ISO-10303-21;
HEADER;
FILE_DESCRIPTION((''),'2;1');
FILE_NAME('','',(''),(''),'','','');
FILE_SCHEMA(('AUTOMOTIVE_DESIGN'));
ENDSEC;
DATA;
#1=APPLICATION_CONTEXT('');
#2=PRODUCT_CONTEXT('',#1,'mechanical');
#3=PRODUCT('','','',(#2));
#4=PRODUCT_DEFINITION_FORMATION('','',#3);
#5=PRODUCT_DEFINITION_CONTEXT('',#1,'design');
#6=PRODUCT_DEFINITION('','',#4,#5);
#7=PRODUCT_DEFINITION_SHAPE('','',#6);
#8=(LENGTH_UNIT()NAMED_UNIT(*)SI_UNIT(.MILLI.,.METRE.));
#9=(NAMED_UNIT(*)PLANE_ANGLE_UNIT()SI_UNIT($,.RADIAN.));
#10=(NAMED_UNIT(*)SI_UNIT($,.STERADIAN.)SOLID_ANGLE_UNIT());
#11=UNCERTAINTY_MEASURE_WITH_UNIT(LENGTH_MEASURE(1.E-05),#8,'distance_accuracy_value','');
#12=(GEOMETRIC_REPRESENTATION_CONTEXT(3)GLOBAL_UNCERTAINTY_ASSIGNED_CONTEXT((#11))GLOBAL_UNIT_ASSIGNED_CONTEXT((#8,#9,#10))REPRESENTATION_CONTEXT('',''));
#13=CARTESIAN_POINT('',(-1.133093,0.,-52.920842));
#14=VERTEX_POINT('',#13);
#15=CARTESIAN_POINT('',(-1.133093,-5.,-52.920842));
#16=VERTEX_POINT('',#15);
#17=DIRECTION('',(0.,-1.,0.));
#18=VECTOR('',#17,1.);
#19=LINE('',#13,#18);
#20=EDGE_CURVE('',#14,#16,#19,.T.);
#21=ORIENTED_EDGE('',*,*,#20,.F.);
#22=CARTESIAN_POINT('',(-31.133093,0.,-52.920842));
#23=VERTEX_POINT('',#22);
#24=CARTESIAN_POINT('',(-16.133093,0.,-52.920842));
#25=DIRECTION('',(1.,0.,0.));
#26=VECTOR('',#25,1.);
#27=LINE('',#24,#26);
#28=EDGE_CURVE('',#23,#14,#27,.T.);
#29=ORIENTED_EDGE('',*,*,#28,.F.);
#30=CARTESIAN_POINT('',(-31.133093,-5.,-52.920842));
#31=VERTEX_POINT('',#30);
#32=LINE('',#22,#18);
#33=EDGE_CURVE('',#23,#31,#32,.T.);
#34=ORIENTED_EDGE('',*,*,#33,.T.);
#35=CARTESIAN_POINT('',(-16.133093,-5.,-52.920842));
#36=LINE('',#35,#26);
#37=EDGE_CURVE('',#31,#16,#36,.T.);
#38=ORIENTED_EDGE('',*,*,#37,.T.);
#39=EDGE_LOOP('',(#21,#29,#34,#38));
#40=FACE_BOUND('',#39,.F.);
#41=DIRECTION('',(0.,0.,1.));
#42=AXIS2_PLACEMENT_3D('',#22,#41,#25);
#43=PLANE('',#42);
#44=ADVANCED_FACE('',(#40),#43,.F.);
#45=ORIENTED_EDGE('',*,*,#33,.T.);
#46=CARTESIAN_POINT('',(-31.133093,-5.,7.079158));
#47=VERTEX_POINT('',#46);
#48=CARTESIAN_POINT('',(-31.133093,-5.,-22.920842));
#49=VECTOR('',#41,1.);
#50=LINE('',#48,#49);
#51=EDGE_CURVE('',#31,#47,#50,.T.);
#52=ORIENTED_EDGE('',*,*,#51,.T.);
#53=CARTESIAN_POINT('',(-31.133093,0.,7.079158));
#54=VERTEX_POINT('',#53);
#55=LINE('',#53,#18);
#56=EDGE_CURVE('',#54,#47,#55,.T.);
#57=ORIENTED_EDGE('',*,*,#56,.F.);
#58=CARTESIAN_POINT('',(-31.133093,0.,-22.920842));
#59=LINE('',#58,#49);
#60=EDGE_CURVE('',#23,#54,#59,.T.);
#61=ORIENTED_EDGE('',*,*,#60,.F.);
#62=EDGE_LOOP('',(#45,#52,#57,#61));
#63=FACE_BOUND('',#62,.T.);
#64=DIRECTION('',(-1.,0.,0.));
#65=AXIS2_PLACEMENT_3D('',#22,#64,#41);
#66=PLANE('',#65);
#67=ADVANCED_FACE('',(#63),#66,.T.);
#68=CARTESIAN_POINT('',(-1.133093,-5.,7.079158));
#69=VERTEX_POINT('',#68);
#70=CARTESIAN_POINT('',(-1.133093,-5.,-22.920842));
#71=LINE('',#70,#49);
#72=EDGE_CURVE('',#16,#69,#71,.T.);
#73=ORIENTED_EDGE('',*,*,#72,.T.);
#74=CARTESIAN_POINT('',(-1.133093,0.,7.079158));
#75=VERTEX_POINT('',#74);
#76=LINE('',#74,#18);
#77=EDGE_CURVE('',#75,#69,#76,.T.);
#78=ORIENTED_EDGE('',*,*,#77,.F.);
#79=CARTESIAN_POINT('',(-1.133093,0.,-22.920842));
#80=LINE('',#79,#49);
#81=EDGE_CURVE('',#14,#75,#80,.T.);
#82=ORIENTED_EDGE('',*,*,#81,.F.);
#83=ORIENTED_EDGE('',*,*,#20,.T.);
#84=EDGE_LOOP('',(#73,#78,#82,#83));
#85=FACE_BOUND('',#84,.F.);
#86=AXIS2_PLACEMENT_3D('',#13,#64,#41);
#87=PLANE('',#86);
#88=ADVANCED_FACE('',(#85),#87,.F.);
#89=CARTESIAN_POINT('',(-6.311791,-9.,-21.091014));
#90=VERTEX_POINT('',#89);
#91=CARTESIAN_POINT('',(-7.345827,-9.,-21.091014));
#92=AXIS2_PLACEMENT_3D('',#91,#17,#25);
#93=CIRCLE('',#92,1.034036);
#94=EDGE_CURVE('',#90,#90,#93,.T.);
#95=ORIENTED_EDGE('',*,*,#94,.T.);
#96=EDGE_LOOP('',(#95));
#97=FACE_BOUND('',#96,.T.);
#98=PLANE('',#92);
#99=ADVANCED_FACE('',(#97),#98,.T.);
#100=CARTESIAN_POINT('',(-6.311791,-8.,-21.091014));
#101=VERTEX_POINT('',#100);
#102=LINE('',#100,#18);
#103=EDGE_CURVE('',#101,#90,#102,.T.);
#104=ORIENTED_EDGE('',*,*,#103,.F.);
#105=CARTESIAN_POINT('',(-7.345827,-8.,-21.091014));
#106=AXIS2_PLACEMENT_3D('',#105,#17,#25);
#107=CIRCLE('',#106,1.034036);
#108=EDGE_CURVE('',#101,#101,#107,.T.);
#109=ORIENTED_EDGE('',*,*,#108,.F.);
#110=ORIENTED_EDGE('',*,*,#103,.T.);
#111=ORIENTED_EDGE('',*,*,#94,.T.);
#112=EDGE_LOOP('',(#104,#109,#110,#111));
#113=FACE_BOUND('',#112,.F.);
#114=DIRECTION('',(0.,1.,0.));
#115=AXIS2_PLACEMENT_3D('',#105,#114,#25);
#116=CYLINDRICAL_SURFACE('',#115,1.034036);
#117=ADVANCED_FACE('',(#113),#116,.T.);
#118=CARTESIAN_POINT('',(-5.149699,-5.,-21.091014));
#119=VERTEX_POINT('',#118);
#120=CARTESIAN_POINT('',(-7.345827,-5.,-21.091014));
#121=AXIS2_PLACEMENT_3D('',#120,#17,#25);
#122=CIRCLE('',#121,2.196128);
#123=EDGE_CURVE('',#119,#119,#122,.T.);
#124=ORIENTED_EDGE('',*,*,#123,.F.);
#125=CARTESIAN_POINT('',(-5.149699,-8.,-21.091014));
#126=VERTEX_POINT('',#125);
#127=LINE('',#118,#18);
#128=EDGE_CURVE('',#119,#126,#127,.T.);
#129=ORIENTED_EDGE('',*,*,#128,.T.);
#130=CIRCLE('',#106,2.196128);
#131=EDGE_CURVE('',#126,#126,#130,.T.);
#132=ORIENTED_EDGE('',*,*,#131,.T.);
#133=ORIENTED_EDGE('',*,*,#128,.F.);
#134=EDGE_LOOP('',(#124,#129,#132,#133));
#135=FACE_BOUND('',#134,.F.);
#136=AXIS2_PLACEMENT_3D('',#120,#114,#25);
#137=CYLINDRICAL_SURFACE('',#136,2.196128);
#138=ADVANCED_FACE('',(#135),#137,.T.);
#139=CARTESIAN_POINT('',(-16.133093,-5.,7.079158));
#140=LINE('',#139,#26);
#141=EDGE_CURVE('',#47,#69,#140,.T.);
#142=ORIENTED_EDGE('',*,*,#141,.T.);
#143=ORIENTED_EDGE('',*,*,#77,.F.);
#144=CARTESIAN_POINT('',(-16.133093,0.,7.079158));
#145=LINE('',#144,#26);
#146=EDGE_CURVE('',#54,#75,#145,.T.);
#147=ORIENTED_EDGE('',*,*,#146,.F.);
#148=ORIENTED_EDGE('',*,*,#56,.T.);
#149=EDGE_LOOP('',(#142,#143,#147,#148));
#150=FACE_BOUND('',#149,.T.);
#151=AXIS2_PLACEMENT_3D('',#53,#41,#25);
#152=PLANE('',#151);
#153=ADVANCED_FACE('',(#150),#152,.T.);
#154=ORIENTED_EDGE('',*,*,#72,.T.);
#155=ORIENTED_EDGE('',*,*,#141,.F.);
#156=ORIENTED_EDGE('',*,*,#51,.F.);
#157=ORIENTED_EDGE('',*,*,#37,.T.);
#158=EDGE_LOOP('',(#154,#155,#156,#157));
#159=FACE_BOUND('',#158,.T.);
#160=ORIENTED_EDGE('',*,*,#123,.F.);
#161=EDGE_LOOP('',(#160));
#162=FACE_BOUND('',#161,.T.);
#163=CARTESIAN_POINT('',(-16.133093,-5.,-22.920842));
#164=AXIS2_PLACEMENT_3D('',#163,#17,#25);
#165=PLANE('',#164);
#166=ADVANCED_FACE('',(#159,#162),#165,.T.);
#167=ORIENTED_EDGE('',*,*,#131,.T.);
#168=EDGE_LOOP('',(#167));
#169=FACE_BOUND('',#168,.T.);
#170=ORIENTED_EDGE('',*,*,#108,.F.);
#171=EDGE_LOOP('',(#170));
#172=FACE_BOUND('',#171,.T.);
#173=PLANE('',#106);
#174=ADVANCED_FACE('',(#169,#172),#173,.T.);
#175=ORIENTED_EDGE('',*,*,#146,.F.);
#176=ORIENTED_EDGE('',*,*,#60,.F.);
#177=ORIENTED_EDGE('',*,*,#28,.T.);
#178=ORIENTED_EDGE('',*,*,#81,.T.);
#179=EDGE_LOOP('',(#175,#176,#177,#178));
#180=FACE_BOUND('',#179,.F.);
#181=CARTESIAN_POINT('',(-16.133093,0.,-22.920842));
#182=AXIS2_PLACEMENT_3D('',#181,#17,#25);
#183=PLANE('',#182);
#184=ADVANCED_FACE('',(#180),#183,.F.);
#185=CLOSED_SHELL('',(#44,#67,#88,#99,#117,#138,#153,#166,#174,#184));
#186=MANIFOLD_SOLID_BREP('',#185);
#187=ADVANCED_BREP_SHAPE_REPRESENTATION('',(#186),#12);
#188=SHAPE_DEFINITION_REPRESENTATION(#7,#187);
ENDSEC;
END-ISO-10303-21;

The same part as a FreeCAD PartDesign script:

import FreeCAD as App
import Part
import Sketcher
from FreeCAD import Vector
Q = App.Units.Quantity

doc = App.newDocument("Part")
body = doc.addObject("PartDesign::Body", "Body")

# Sketch on XZ plane
sketch1 = body.newObject("Sketcher::SketchObject", "Sketch")
sketch1.AttachmentSupport = (doc.getObject("XZ_Plane"), [""])
sketch1.MapMode = "FlatFace"
sketch1.addGeometry([
    Part.LineSegment(Vector(-31.133093, 7.079158, 0), Vector(-31.133093, -52.920842, 0)),
    Part.LineSegment(Vector(-31.133093, -52.920842, 0), Vector(-1.133093, -52.920842, 0)),
    Part.LineSegment(Vector(-1.133093, -52.920842, 0), Vector(-1.133093, 7.079158, 0)),
    Part.LineSegment(Vector(-1.133093, 7.079158, 0), Vector(-31.133093, 7.079158, 0)),
], False)
sketch1.addConstraint([
    Sketcher.Constraint("Coincident", 0, 2, 1, 1),
    Sketcher.Constraint("Coincident", 1, 2, 2, 1),
    Sketcher.Constraint("Coincident", 2, 2, 3, 1),
    Sketcher.Constraint("Coincident", 3, 2, 0, 1),
    Sketcher.Constraint("Vertical", 0),
    Sketcher.Constraint("Horizontal", 1),
    Sketcher.Constraint("Vertical", 2),
    Sketcher.Constraint("Horizontal", 3),
    Sketcher.Constraint("DistanceX", 1, 1, 1, 2, Q("30 mm")),
    Sketcher.Constraint("DistanceY", 0, 2, 0, 1, Q("60 mm")),
    Sketcher.Constraint("DistanceX", 0, 2, -1, 1, Q("31.133093 mm")),
    Sketcher.Constraint("DistanceY", 0, 2, -1, 1, Q("52.920842 mm")),
])
pad1 = body.newObject("PartDesign::Pad", "Pad")
pad1.Profile = sketch1
pad1.Length = 5

# Sketch on XZ plane
sketch2 = body.newObject("Sketcher::SketchObject", "Sketch001")
sketch2.AttachmentSupport = (doc.getObject("XZ_Plane"), [""])
sketch2.MapMode = "FlatFace"
sketch2.AttachmentOffset = App.Placement(Vector(0, 0, 5), App.Rotation())
sketch2.addGeometry(Part.Circle(Vector(-7.345827, -21.091014, 0), Vector(0, 0, 1), 2.196128), False)
sketch2.addConstraint([
    Sketcher.Constraint("Diameter", 0, Q("4.392256 mm")),
    Sketcher.Constraint("DistanceX", 0, 3, -1, 1, Q("7.345827 mm")),
    Sketcher.Constraint("DistanceY", 0, 3, -1, 1, Q("21.091014 mm")),
])
pad2 = body.newObject("PartDesign::Pad", "Pad001")
pad2.Profile = sketch2
pad2.Length = 3

# Sketch on XZ plane
sketch3 = body.newObject("Sketcher::SketchObject", "Sketch002")
sketch3.AttachmentSupport = (doc.getObject("XZ_Plane"), [""])
sketch3.MapMode = "FlatFace"
sketch3.AttachmentOffset = App.Placement(Vector(0, 0, 8), App.Rotation())
sketch3.addGeometry(Part.Circle(Vector(-7.345827, -21.091014, 0), Vector(0, 0, 1), 1.034036), False)
sketch3.addConstraint([
    Sketcher.Constraint("Diameter", 0, Q("2.068072 mm")),
    Sketcher.Constraint("DistanceX", 0, 3, -1, 1, Q("7.345827 mm")),
    Sketcher.Constraint("DistanceY", 0, 3, -1, 1, Q("21.091014 mm")),
])
pad3 = body.newObject("PartDesign::Pad", "Pad002")
pad3.Profile = sketch3
pad3.Length = 1

doc.recompute()
